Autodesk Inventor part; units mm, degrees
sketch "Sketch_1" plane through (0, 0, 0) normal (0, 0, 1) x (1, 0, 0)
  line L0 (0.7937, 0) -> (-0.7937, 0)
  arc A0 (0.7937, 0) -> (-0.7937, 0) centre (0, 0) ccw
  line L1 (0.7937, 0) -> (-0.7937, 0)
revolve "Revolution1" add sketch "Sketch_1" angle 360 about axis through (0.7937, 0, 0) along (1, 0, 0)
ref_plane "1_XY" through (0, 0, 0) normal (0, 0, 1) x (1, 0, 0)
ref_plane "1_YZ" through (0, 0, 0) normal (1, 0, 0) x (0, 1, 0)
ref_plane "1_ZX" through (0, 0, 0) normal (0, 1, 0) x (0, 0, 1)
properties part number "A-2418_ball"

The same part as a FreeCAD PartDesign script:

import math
import FreeCAD as App
import Part
import Sketcher
from FreeCAD import Vector
Q = App.Units.Quantity

doc = App.newDocument("Part")
body = doc.addObject("PartDesign::Body", "Body")

# Sketch on XY plane
sketch1 = body.newObject("Sketcher::SketchObject", "Sketch")
sketch1.AttachmentSupport = (doc.getObject("XY_Plane"), [""])
sketch1.MapMode = "FlatFace"
sketch1.addGeometry([
    Part.LineSegment(Vector(-0.8, 0, 0), Vector(0.8, 0, 0)),
    Part.ArcOfCircle(Part.Circle(Vector(0, 0, 0), Vector(0, 0, 1), 0.8), math.radians(0), math.radians(180)),
], False)
sketch1.addConstraint([
    Sketcher.Constraint("Coincident", 0, 1, 1, 2),
    Sketcher.Constraint("Coincident", 1, 1, 0, 2),
    Sketcher.Constraint("Horizontal", 0),
    Sketcher.Constraint("Coincident", 1, 3, -1, 1),
    Sketcher.Constraint("PointOnObject", 0, 1, -1),
    Sketcher.Constraint("Radius", 1, Q("0.031248 in")),
])
revolution = body.newObject("PartDesign::Revolution", "Revolution")
revolution.Profile = sketch1
revolution.ReferenceAxis = (sketch1, ["H_Axis"])
revolution.Angle = 360

doc.recompute()
